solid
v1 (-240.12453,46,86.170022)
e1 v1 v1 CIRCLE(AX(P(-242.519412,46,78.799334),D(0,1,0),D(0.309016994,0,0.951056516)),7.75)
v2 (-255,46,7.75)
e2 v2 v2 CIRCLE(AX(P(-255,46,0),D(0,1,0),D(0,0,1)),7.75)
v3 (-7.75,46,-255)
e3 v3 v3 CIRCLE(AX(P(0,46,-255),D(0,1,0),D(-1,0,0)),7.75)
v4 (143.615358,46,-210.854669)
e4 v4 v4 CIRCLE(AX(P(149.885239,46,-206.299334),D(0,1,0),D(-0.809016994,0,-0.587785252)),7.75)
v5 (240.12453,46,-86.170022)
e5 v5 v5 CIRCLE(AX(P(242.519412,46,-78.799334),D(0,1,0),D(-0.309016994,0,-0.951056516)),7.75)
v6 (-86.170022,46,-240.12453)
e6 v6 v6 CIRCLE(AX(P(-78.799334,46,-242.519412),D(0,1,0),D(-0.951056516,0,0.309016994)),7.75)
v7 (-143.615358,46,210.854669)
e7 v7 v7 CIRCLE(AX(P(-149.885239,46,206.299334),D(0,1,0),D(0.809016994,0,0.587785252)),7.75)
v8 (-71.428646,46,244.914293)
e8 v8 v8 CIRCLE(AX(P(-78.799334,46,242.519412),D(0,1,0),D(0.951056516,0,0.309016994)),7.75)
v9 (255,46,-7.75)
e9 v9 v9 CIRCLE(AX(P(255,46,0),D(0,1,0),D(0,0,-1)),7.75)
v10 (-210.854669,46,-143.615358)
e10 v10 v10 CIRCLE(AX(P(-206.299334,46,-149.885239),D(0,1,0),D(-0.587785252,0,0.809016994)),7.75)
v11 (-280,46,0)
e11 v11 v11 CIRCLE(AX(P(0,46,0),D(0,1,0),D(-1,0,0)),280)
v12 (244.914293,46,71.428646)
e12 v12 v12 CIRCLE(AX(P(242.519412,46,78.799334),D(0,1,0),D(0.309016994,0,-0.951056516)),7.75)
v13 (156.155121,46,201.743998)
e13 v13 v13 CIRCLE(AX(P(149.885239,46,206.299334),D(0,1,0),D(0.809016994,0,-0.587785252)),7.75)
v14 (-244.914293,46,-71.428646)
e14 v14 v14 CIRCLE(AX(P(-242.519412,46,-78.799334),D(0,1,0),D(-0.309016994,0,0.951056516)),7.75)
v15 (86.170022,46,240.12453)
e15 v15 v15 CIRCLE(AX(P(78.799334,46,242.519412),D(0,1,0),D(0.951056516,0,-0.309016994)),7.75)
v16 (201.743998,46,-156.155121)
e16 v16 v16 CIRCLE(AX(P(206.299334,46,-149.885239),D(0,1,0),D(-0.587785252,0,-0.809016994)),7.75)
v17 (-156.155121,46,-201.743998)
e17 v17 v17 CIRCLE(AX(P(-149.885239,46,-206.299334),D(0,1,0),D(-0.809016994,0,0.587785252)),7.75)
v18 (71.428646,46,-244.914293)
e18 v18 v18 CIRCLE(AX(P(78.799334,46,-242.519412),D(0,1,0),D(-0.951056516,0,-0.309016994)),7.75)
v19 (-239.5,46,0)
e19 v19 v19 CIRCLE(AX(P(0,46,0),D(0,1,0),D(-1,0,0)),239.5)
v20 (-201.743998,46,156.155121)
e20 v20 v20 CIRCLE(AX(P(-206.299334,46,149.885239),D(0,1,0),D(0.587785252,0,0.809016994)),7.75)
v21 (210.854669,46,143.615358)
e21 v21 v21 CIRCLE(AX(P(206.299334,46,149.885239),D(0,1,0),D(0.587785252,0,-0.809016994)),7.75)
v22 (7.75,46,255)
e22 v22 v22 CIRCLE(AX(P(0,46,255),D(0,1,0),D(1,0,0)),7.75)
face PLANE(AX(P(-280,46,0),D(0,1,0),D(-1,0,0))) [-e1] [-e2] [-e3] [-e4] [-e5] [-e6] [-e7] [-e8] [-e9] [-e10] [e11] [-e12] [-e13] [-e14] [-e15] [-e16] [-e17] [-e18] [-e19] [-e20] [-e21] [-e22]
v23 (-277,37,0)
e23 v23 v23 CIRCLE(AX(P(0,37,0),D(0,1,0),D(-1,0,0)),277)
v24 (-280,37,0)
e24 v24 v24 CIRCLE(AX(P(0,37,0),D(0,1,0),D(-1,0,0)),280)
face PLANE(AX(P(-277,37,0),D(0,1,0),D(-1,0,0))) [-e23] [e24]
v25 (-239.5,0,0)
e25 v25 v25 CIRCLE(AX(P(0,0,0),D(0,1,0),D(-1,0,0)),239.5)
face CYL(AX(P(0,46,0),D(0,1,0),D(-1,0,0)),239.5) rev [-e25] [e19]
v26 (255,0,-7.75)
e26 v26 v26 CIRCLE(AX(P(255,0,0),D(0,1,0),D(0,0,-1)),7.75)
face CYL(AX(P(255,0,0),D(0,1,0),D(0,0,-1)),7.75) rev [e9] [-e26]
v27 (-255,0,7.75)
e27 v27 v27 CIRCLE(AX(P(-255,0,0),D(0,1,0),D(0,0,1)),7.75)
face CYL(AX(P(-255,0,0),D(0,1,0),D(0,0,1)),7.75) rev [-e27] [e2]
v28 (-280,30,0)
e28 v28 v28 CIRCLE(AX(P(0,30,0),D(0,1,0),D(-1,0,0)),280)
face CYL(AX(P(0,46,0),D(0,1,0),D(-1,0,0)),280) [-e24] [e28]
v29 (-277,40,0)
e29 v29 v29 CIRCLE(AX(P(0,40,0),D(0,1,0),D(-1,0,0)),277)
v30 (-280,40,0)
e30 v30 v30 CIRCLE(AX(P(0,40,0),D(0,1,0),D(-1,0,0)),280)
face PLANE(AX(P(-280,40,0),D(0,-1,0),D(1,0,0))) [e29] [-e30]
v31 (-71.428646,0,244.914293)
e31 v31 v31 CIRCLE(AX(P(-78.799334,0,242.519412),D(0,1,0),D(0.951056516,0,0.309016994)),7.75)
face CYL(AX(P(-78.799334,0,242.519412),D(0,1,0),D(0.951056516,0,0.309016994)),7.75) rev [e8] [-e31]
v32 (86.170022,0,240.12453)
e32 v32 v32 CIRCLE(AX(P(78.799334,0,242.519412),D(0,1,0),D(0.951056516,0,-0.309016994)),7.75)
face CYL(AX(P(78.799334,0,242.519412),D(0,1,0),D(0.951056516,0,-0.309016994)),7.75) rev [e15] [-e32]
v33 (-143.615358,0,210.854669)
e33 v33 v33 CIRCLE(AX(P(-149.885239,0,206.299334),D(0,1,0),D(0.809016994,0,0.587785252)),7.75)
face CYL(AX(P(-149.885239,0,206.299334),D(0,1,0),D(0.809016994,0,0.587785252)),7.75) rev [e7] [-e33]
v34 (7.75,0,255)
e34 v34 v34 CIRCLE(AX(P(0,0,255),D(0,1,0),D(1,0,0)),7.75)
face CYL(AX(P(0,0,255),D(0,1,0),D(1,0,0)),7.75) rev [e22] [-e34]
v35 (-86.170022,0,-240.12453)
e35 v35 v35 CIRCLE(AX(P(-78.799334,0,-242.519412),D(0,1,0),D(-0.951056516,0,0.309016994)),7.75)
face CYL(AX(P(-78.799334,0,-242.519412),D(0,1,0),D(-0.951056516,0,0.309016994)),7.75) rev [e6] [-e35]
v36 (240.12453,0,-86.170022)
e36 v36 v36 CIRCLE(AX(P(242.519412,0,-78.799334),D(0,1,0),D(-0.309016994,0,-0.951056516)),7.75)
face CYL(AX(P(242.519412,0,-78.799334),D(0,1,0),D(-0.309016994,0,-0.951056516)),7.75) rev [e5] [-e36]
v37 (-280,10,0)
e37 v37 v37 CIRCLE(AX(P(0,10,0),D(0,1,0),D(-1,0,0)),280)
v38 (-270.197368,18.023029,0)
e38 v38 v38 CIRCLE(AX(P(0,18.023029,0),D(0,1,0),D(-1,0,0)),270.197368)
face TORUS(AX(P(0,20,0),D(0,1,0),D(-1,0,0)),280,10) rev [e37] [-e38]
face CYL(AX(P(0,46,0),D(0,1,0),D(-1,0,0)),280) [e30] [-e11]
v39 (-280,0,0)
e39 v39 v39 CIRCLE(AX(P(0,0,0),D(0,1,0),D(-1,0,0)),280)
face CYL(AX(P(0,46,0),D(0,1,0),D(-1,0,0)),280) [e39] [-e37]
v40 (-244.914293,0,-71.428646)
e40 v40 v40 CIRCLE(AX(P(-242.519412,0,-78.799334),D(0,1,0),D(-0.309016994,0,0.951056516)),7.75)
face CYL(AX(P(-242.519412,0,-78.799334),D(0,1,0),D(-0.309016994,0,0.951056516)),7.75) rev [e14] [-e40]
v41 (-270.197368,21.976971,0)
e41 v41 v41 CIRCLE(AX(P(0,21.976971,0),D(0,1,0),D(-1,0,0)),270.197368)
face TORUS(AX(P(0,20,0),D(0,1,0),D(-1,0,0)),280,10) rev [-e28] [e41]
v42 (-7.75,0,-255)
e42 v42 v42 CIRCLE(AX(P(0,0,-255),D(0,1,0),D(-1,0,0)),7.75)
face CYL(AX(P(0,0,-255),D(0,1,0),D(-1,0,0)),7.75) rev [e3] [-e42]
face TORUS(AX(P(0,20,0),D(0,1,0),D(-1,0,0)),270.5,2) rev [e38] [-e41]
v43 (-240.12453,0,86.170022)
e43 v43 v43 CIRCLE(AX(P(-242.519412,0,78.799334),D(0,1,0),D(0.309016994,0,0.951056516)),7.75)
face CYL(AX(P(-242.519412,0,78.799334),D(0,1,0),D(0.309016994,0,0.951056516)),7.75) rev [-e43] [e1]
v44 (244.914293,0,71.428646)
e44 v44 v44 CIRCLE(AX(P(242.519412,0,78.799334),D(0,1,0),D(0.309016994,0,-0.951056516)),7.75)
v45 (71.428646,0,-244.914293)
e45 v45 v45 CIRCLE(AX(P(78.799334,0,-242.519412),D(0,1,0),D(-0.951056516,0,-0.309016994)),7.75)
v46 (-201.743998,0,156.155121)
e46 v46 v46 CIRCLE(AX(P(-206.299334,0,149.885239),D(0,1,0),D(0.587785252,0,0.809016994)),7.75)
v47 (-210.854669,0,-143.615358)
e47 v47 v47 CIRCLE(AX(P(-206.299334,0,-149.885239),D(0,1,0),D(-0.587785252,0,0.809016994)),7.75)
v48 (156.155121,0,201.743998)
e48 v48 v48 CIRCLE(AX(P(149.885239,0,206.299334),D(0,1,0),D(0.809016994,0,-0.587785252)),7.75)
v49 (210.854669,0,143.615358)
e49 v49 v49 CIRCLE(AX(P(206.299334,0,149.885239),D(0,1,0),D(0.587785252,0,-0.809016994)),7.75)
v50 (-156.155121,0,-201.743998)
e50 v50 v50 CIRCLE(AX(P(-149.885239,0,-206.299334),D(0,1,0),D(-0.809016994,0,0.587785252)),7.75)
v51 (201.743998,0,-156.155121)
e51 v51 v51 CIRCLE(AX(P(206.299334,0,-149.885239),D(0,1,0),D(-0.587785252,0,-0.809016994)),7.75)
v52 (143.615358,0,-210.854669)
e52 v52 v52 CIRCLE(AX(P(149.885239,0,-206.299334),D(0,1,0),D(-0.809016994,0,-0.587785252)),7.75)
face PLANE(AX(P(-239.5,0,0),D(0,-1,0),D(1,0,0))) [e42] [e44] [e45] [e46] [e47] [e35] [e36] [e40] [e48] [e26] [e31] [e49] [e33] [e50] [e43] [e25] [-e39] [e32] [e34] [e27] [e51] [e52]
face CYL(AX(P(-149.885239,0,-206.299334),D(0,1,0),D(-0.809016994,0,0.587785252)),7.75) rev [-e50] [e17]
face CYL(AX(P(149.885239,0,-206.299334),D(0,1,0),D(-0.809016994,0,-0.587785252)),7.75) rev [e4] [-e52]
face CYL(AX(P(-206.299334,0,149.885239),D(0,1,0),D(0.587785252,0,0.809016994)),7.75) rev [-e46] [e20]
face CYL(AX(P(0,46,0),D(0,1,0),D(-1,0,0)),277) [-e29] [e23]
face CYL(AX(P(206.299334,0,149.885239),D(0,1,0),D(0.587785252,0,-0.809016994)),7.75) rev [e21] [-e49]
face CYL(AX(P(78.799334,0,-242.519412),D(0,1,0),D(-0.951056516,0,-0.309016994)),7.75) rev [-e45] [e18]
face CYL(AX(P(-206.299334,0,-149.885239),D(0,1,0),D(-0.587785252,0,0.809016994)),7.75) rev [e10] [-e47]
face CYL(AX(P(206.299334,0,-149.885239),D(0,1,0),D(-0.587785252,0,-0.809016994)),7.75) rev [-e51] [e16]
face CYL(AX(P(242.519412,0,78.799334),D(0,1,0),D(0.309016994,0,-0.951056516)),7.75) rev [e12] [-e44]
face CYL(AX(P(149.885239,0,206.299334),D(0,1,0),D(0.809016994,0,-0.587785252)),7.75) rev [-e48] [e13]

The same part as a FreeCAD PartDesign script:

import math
import FreeCAD as App
import Part
import Sketcher
from FreeCAD import Vector
Q = App.Units.Quantity

doc = App.newDocument("Part")
body = doc.addObject("PartDesign::Body", "Body")

# Sketch on XY plane
sketch1 = body.newObject("Sketcher::SketchObject", "Sketch")
sketch1.AttachmentSupport = (doc.getObject("XY_Plane"), [""])
sketch1.MapMode = "FlatFace"
sketch1.addGeometry([
    Part.LineSegment(Vector(-280, 46, 0), Vector(-280, 40, 0)),  # 0
    Part.LineSegment(Vector(-280, 40, 0), Vector(-277, 40, 0)),  # 1
    Part.LineSegment(Vector(-277, 40, 0), Vector(-277, 37, 0)),  # 2
    Part.LineSegment(Vector(-277, 37, 0), Vector(-280, 37, 0)),  # 3
    Part.LineSegment(Vector(-280, 37, 0), Vector(-280, 30, 0)),  # 4
    Part.ArcOfCircle(Part.Circle(Vector(-280, 20, 0), Vector(0, 0, 1), 10), math.radians(11), math.radians(90)),  # 5
    Part.ArcOfCircle(Part.Circle(Vector(-270.5, 20, 0), Vector(0, 0, 1), 2), math.radians(-81), math.radians(81)),  # 6
    Part.ArcOfCircle(Part.Circle(Vector(-280, 20, 0), Vector(0, 0, 1), 10), math.radians(-90), math.radians(-11)),  # 7
    Part.LineSegment(Vector(-280, 10, 0), Vector(-280, 0, 0)),  # 8
    Part.LineSegment(Vector(-280, 0, 0), Vector(-239.5, 0, 0)),  # 9
    Part.LineSegment(Vector(-239.5, 0, 0), Vector(-239.5, 46, 0)),  # 10
    Part.LineSegment(Vector(-239.5, 46, 0), Vector(-280, 46, 0)),  # 11
], False)
sketch1.addConstraint([
    Sketcher.Constraint("Coincident", 0, 2, 1, 1),
    Sketcher.Constraint("Coincident", 1, 2, 2, 1),
    Sketcher.Constraint("Coincident", 2, 2, 3, 1),
    Sketcher.Constraint("Coincident", 3, 2, 4, 1),
    Sketcher.Constraint("Coincident", 4, 2, 5, 2),
    Sketcher.Constraint("Coincident", 5, 1, 6, 2),
    Sketcher.Constraint("Coincident", 6, 1, 7, 2),
    Sketcher.Constraint("Coincident", 7, 1, 8, 1),
    Sketcher.Constraint("Coincident", 8, 2, 9, 1),
    Sketcher.Constraint("Coincident", 9, 2, 10, 1),
    Sketcher.Constraint("Coincident", 10, 2, 11, 1),
    Sketcher.Constraint("Coincident", 11, 2, 0, 1),
    Sketcher.Constraint("Vertical", 0),
    Sketcher.Constraint("Horizontal", 1),
    Sketcher.Constraint("Vertical", 2),
    Sketcher.Constraint("Horizontal", 3),
    Sketcher.Constraint("Vertical", 4),
    Sketcher.Constraint("Vertical", 8),
    Sketcher.Constraint("Horizontal", 9),
    Sketcher.Constraint("Vertical", 10),
    Sketcher.Constraint("Horizontal", 11),
    Sketcher.Constraint("Coincident", 7, 3, 5, 3),
    Sketcher.Constraint("Equal", 5, 7),
    Sketcher.Constraint("PointOnObject", 8, 2, -1),
    Sketcher.Constraint("Horizontal", 5, 3, 6, 3),
    Sketcher.Constraint("Vertical", 7, 3, 0, 2),
    Sketcher.Constraint("Vertical", 0, 2, 3, 2),
    Sketcher.Constraint("Vertical", 4, 2, 7, 1),
    Sketcher.Constraint("Equal", 3, 2),
    Sketcher.Constraint("Radius", 5, Q("10 mm")),
    Sketcher.Constraint("Radius", 6, Q("2 mm")),
    Sketcher.Constraint("DistanceX", 1, 1, 1, 2, Q("3 mm")),
    Sketcher.Constraint("DistanceY", 0, 2, 0, 1, Q("6 mm")),
    Sketcher.Constraint("DistanceY", 4, 2, 4, 1, Q("7 mm")),
    Sketcher.Constraint("DistanceY", 8, 2, 8, 1, Q("10 mm")),
    Sketcher.Constraint("DistanceX", 9, 1, 9, 2, Q("40.5 mm")),
    Sketcher.Constraint("DistanceX", 5, 3, -1, 1, Q("280 mm")),
    Sketcher.Constraint("DistanceX", 6, 3, 9, 2, Q("31 mm")),
])
revolution = body.newObject("PartDesign::Revolution", "Revolution")
revolution.Profile = sketch1
revolution.ReferenceAxis = (sketch1, ["V_Axis"])
revolution.Angle = 360

# Sketch on XZ plane
sketch2 = body.newObject("Sketcher::SketchObject", "Sketch001")
sketch2.AttachmentSupport = (doc.getObject("XZ_Plane"), [""])
sketch2.MapMode = "FlatFace"
sketch2.AttachmentOffset = App.Placement(Vector(0, 0, -46), App.Rotation())
sketch2.addGeometry(Part.Circle(Vector(-255, 0, 0), Vector(0, 0, 1), 8), False)
sketch2.addConstraint([
    Sketcher.Constraint("PointOnObject", 0, 3, -1),
    Sketcher.Constraint("Diameter", 0, Q("15.5 mm")),
    Sketcher.Constraint("DistanceX", 0, 3, -1, 1, Q("255 mm")),
])
pocket1 = body.newObject("PartDesign::Pocket", "Pocket")
pocket1.Profile = sketch2
pocket1.Type = "ThroughAll"
pocket1.Reversed = True
doc.recompute()

polarpattern = body.newObject("PartDesign::PolarPattern", "PolarPattern")
polarpattern.Originals = [pocket1]
polarpattern.Axis = (doc.getObject("Y_Axis"), [""])
polarpattern.Angle = 360
polarpattern.Occurrences = 20
body.Tip = polarpattern

doc.recompute()
